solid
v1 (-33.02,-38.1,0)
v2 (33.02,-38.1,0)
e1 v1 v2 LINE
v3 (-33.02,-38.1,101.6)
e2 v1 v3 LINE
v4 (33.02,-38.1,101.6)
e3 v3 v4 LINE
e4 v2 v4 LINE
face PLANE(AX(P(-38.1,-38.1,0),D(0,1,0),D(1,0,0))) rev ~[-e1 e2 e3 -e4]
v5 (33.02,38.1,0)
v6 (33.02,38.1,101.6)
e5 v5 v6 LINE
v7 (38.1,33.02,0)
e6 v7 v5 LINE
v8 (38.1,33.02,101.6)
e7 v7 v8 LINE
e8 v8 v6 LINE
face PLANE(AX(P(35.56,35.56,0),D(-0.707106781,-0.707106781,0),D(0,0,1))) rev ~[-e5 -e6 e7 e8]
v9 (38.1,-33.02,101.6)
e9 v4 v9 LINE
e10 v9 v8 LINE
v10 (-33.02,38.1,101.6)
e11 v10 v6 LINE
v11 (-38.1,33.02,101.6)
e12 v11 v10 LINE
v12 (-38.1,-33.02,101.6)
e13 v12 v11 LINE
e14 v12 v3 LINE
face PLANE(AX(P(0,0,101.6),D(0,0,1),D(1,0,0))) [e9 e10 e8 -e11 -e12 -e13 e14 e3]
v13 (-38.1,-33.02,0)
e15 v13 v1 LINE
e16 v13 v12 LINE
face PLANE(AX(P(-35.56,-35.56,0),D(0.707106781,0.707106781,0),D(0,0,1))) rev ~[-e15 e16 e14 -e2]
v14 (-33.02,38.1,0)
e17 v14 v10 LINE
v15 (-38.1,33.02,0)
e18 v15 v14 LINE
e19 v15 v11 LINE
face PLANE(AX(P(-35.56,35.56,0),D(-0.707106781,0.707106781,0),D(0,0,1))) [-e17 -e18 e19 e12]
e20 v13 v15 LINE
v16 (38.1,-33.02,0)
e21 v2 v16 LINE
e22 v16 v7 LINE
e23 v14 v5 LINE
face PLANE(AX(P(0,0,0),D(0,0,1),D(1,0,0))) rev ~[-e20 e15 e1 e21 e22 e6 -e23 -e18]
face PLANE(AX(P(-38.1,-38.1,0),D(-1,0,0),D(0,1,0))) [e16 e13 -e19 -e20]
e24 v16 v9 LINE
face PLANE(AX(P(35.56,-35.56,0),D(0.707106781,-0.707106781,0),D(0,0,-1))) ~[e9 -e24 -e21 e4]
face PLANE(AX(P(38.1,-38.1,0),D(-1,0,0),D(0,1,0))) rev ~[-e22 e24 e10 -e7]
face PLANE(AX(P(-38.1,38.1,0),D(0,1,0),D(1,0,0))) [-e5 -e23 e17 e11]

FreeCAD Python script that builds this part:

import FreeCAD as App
import Part
import Sketcher
from FreeCAD import Vector
Q = App.Units.Quantity


def edges_at(feature, points):
    """Names of the edges that pass closest to the given points."""
    edges = feature.Shape.Edges
    near = lambda p: min(range(len(edges)), key=lambda i: edges[i].distToShape(Part.Vertex(*p))[0])
    return sorted({f"Edge{near(p) + 1}" for p in points})


def add_polygon(sketch, points):
    """Adds a closed chain of lines whose ends are joined by coincident constraints."""
    first, n = sketch.GeometryCount, len(points)
    for a, b in zip(points, points[1:] + points[:1]):
        sketch.addGeometry(Part.LineSegment(App.Vector(*a, 0), App.Vector(*b, 0)), False)
    for i in range(n):
        sketch.addConstraint(Sketcher.Constraint("Coincident", first + i, 2, first + (i + 1) % n, 1))

doc = App.newDocument("Part")
body = doc.addObject("PartDesign::Body", "Body")

# Sketch on XY plane
sketch1 = body.newObject("Sketcher::SketchObject", "Sketch")
sketch1.AttachmentSupport = (doc.getObject("XY_Plane"), [""])
sketch1.MapMode = "FlatFace"
add_polygon(sketch1, [(-38, 38), (-38, -38), (38, -38), (38, 38)])  # lines 0-3
sketch1.addConstraint([
    Sketcher.Constraint("Vertical", 0),
    Sketcher.Constraint("Horizontal", 1),
    Sketcher.Constraint("Vertical", 2),
    Sketcher.Constraint("Horizontal", 3),
    Sketcher.Constraint("Symmetric", 0, 2, 2, 2, -1, 1),
    Sketcher.Constraint("Equal", 3, 0),
    Sketcher.Constraint("DistanceX", 1, 1, 1, 2, Q("3 in")),
])
pad1 = body.newObject("PartDesign::Pad", "Pad")
pad1.Profile = sketch1
pad1.Length = Q("4 in")
doc.recompute()

chamfer = body.newObject("PartDesign::Chamfer", "Chamfer")
chamfer.Base = (pad1, edges_at(pad1, [
    (-38.1, -38.1, 50.8),
    (-38.1, 38.1, 50.8),
    (38.1, -38.1, 50.8),
    (38.1, 38.1, 50.8),
]))
chamfer.Size = Q("0.2 in")

doc.recompute()
